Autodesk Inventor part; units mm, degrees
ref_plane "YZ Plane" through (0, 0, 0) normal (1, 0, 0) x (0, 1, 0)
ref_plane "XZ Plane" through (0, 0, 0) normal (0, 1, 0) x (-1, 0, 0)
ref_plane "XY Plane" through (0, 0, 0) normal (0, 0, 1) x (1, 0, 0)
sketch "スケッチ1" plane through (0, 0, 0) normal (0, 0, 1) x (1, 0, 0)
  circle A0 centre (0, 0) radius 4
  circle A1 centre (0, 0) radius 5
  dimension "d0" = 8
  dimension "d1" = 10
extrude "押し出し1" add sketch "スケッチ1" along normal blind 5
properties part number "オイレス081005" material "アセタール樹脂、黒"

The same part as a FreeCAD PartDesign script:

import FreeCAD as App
import Part
import Sketcher

V = App.Vector

doc = App.newDocument("Part")
body = doc.addObject("PartDesign::Body", "Body")

# Sketch on XY plane
sketch1 = doc.addObject("Sketcher::SketchObject", "Sketch")
body.addObject(sketch1)
sketch1.AttachmentSupport = (doc.XY_Plane, [""])
sketch1.MapMode = "FlatFace"
sketch1.addGeometry(Part.Circle(V(0, 0, 0), V(0, 0, 1), 5), False)
sketch1.addGeometry(Part.Circle(V(0, 0, 0), V(0, 0, 1), 4), False)
sketch1.addConstraint(Sketcher.Constraint("Coincident", 0, 3, -1, 1))
sketch1.addConstraint(Sketcher.Constraint("Coincident", 1, 3, -1, 1))
sketch1.addConstraint(Sketcher.Constraint("Diameter", 0, 10.0))
sketch1.addConstraint(Sketcher.Constraint("Diameter", 1, 8.0))
pad1 = doc.addObject("PartDesign::Pad", "Pad")
body.addObject(pad1)
pad1.Profile = sketch1
pad1.Length = 5

doc.recompute()
